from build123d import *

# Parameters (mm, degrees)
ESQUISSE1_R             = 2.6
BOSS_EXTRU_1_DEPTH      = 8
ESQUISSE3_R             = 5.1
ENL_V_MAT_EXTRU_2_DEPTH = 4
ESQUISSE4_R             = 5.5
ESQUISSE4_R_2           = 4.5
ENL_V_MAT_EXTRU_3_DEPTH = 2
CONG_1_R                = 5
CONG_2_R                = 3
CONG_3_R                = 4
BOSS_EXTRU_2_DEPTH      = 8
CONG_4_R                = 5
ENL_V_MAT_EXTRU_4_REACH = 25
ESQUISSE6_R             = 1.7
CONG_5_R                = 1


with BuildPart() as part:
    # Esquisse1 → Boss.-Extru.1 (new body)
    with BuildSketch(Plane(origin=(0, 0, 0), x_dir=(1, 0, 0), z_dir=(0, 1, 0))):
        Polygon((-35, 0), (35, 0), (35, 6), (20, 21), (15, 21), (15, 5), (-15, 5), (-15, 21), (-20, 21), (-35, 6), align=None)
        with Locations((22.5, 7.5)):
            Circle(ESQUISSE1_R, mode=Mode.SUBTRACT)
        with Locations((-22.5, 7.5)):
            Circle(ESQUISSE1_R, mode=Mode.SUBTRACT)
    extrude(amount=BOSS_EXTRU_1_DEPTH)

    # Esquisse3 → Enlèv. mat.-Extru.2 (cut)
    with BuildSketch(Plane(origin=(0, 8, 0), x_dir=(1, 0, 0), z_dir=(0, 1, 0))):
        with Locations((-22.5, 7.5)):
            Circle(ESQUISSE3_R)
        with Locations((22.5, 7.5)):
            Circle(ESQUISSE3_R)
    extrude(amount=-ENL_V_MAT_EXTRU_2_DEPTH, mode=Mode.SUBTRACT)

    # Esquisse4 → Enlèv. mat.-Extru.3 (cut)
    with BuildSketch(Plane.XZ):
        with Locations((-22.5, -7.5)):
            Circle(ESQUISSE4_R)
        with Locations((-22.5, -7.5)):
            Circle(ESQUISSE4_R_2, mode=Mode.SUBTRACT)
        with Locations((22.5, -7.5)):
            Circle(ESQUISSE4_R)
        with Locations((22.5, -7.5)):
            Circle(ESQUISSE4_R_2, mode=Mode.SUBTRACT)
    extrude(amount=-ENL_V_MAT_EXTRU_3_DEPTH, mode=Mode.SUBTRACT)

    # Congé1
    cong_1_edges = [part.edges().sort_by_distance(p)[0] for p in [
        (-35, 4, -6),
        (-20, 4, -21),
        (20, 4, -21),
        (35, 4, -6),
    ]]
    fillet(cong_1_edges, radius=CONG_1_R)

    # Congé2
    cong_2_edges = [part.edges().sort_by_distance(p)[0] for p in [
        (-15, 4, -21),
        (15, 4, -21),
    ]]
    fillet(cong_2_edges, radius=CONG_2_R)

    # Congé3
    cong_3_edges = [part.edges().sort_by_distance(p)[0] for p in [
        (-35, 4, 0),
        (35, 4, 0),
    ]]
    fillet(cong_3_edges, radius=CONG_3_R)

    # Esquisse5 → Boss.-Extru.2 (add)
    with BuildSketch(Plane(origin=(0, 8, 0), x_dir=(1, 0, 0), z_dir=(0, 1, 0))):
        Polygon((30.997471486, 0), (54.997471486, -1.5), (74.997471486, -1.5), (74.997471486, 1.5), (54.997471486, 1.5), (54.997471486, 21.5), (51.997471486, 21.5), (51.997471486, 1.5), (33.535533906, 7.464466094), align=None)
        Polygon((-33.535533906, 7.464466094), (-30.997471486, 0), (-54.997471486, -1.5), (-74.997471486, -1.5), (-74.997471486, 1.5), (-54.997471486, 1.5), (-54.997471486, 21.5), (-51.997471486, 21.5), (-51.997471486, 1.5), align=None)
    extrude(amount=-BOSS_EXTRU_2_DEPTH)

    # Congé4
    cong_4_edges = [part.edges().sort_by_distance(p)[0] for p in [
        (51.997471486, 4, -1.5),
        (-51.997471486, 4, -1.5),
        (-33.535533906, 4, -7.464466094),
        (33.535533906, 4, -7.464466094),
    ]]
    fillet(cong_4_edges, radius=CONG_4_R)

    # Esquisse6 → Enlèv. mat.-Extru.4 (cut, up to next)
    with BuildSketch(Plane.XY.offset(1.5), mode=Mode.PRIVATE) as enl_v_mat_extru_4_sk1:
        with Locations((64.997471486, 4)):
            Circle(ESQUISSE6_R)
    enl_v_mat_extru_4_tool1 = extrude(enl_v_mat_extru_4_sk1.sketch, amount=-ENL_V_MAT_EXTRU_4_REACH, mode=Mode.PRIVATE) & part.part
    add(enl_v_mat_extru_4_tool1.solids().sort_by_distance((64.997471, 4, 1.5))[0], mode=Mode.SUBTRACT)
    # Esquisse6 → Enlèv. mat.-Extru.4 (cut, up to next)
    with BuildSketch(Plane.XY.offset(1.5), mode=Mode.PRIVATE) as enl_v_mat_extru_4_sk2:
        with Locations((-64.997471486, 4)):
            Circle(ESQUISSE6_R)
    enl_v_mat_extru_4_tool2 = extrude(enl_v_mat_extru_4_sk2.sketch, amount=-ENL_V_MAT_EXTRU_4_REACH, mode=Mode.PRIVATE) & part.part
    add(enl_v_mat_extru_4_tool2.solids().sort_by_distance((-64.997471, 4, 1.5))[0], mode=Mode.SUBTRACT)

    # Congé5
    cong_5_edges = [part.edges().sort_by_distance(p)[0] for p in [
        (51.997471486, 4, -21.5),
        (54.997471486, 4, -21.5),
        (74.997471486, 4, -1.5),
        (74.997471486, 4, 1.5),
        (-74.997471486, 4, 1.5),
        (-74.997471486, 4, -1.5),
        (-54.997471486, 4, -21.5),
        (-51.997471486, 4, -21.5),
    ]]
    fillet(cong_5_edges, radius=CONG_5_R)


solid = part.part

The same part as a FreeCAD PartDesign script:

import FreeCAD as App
import Part
import Sketcher

V = App.Vector


def edges_at(feature, points):
    """Names of the edges that pass closest to the given points."""
    edges = feature.Shape.Edges
    near = lambda p: min(range(len(edges)), key=lambda i: edges[i].distToShape(Part.Vertex(*p))[0])
    return sorted({f"Edge{near(p) + 1}" for p in points})

doc = App.newDocument("Part")
body = doc.addObject("PartDesign::Body", "Body")

# Sketch on XZ plane
sketch1 = body.newObject("Sketcher::SketchObject", "Sketch")
sketch1.AttachmentSupport = (doc.getObject("XZ_Plane"), [""])
sketch1.MapMode = "FlatFace"
sketch1.addGeometry(Part.LineSegment(V(-35, 0, 0), V(35, 0, 0)), False)
sketch1.addGeometry(Part.LineSegment(V(35, 0, 0), V(35, -6, 0)), False)
sketch1.addGeometry(Part.LineSegment(V(35, -6, 0), V(20, -21, 0)), False)
sketch1.addGeometry(Part.LineSegment(V(20, -21, 0), V(15, -21, 0)), False)
sketch1.addGeometry(Part.LineSegment(V(15, -21, 0), V(15, -5, 0)), False)
sketch1.addGeometry(Part.LineSegment(V(15, -5, 0), V(-15, -5, 0)), False)
sketch1.addGeometry(Part.LineSegment(V(-15, -5, 0), V(-15, -21, 0)), False)
sketch1.addGeometry(Part.LineSegment(V(-15, -21, 0), V(-20, -21, 0)), False)
sketch1.addGeometry(Part.LineSegment(V(-20, -21, 0), V(-35, -6, 0)), False)
sketch1.addGeometry(Part.LineSegment(V(-35, -6, 0), V(-35, 0, 0)), False)
sketch1.addGeometry(Part.Circle(V(-22.5, -7.5, 0), V(0, 0, 1), 2.6), False)
sketch1.addGeometry(Part.Circle(V(22.5, -7.5, 0), V(0, 0, 1), 2.6), False)
sketch1.addConstraint(Sketcher.Constraint("Coincident", 0, 2, 1, 1))
sketch1.addConstraint(Sketcher.Constraint("Coincident", 1, 2, 2, 1))
sketch1.addConstraint(Sketcher.Constraint("Coincident", 2, 2, 3, 1))
sketch1.addConstraint(Sketcher.Constraint("Coincident", 3, 2, 4, 1))
sketch1.addConstraint(Sketcher.Constraint("Coincident", 4, 2, 5, 1))
sketch1.addConstraint(Sketcher.Constraint("Coincident", 5, 2, 6, 1))
sketch1.addConstraint(Sketcher.Constraint("Coincident", 6, 2, 7, 1))
sketch1.addConstraint(Sketcher.Constraint("Coincident", 7, 2, 8, 1))
sketch1.addConstraint(Sketcher.Constraint("Coincident", 8, 2, 9, 1))
sketch1.addConstraint(Sketcher.Constraint("Coincident", 9, 2, 0, 1))
sketch1.addConstraint(Sketcher.Constraint("Horizontal", 0))
sketch1.addConstraint(Sketcher.Constraint("Vertical", 1))
sketch1.addConstraint(Sketcher.Constraint("Horizontal", 3))
sketch1.addConstraint(Sketcher.Constraint("Vertical", 4))
sketch1.addConstraint(Sketcher.Constraint("Horizontal", 5))
sketch1.addConstraint(Sketcher.Constraint("Vertical", 6))
sketch1.addConstraint(Sketcher.Constraint("Horizontal", 7))
sketch1.addConstraint(Sketcher.Constraint("Vertical", 9))
sketch1.addConstraint(Sketcher.Constraint("Equal", 10, 11))
sketch1.addConstraint(Sketcher.Constraint("Symmetric", 0, 2, 9, 2, -1, 1))
sketch1.addConstraint(Sketcher.Constraint("Symmetric", 10, 3, 11, 3, -2))
sketch1.addConstraint(Sketcher.Constraint("Symmetric", 3, 2, 6, 2, -2))
sketch1.addConstraint(Sketcher.Constraint("Perpendicular", 2, 8))
sketch1.addConstraint(Sketcher.Constraint("Horizontal", 1, 2, 8, 2))
sketch1.addConstraint(Sketcher.Constraint("Equal", 3, 7))
sketch1.addConstraint(Sketcher.Constraint("Diameter", 10, 5.2))
sketch1.addConstraint(Sketcher.Constraint("DistanceX", 0, 1, 0, 2, 70.0))
sketch1.addConstraint(Sketcher.Constraint("DistanceX", 3, 2, 3, 1, 5.0))
sketch1.addConstraint(Sketcher.Constraint("DistanceX", 5, 2, 5, 1, 30.0))
sketch1.addConstraint(Sketcher.Constraint("DistanceY", 1, 2, 1, 1, 6.0))
sketch1.addConstraint(Sketcher.Constraint("DistanceY", 4, 1, 4, 2, 16.0))
sketch1.addConstraint(Sketcher.Constraint("DistanceX", 10, 3, 11, 3, 45.0))
sketch1.addConstraint(Sketcher.Constraint("DistanceY", 10, 3, -1, 1, 7.5))
pad1 = body.newObject("PartDesign::Pad", "Pad")
pad1.Profile = sketch1
pad1.Length = 8
pad1.Reversed = True

# Sketch on XZ plane
sketch2 = body.newObject("Sketcher::SketchObject", "Sketch001")
sketch2.AttachmentSupport = (doc.getObject("XZ_Plane"), [""])
sketch2.MapMode = "FlatFace"
sketch2.AttachmentOffset = App.Placement(V(0, 0, -8), App.Rotation())
sketch2.addGeometry(Part.Circle(V(-22.5, -7.5, 0), V(0, 0, 1), 5.1), False)
sketch2.addGeometry(Part.Circle(V(22.5, -7.5, 0), V(0, 0, 1), 5.1), False)
sketch2.addConstraint(Sketcher.Constraint("Equal", 0, 1))
sketch2.addConstraint(Sketcher.Constraint("Symmetric", 0, 3, 1, 3, -2))
sketch2.addConstraint(Sketcher.Constraint("Diameter", 0, 10.2))
sketch2.addConstraint(Sketcher.Constraint("DistanceX", 0, 3, 1, 3, 45.0))
sketch2.addConstraint(Sketcher.Constraint("DistanceY", 0, 3, -1, 1, 7.5))
pocket1 = body.newObject("PartDesign::Pocket", "Pocket")
pocket1.Profile = sketch2
pocket1.Length = 4
pocket1.Reversed = True

# Sketch on XZ plane
sketch3 = body.newObject("Sketcher::SketchObject", "Sketch002")
sketch3.AttachmentSupport = (doc.getObject("XZ_Plane"), [""])
sketch3.MapMode = "FlatFace"
sketch3.addGeometry(Part.Circle(V(-22.5, -7.5, 0), V(0, 0, 1), 5.5), False)
sketch3.addGeometry(Part.Circle(V(-22.5, -7.5, 0), V(0, 0, 1), 4.5), False)
sketch3.addGeometry(Part.Circle(V(22.5, -7.5, 0), V(0, 0, 1), 5.5), False)
sketch3.addGeometry(Part.Circle(V(22.5, -7.5, 0), V(0, 0, 1), 4.5), False)
sketch3.addConstraint(Sketcher.Constraint("Coincident", 1, 3, 0, 3))
sketch3.addConstraint(Sketcher.Constraint("Coincident", 3, 3, 2, 3))
sketch3.addConstraint(Sketcher.Constraint("Equal", 0, 2))
sketch3.addConstraint(Sketcher.Constraint("Equal", 1, 3))
sketch3.addConstraint(Sketcher.Constraint("Symmetric", 0, 3, 2, 3, -2))
sketch3.addConstraint(Sketcher.Constraint("Diameter", 0, 11.0))
sketch3.addConstraint(Sketcher.Constraint("Diameter", 1, 9.0))
sketch3.addConstraint(Sketcher.Constraint("DistanceX", 0, 3, 2, 3, 45.0))
sketch3.addConstraint(Sketcher.Constraint("DistanceY", 0, 3, -1, 1, 7.5))
pocket2 = body.newObject("PartDesign::Pocket", "Pocket001")
pocket2.Profile = sketch3
pocket2.Length = 2
doc.recompute()

fillet = body.newObject("PartDesign::Fillet", "Fillet")
fillet.Base = (pocket2, edges_at(pocket2, [
    (-35, 4, -6),
    (-20, 4, -21),
    (20, 4, -21),
    (35, 4, -6),
]))
fillet.Radius = 5
doc.recompute()

fillet2 = body.newObject("PartDesign::Fillet", "Fillet001")
fillet2.Base = (fillet, edges_at(fillet, [(-15, 4, -21), (15, 4, -21)]))
fillet2.Radius = 3
doc.recompute()

fillet3 = body.newObject("PartDesign::Fillet", "Fillet002")
fillet3.Base = (fillet2, edges_at(fillet2, [(-35, 4, 0), (35, 4, 0)]))
fillet3.Radius = 4

# Sketch on XZ plane
sketch4 = body.newObject("Sketcher::SketchObject", "Sketch003")
sketch4.AttachmentSupport = (doc.getObject("XZ_Plane"), [""])
sketch4.MapMode = "FlatFace"
sketch4.AttachmentOffset = App.Placement(V(0, 0, -8), App.Rotation())
sketch4.addGeometry(Part.LineSegment(V(30.997471, 0, 0), V(54.997471, 1.5, 0)), False)
sketch4.addGeometry(Part.LineSegment(V(54.997471, 1.5, 0), V(74.997471, 1.5, 0)), False)
sketch4.addGeometry(Part.LineSegment(V(74.997471, 1.5, 0), V(74.997471, -1.5, 0)), False)
sketch4.addGeometry(Part.LineSegment(V(74.997471, -1.5, 0), V(54.997471, -1.5, 0)), False)
sketch4.addGeometry(Part.LineSegment(V(54.997471, -1.5, 0), V(54.997471, -21.5, 0)), False)
sketch4.addGeometry(Part.LineSegment(V(54.997471, -21.5, 0), V(51.997471, -21.5, 0)), False)
sketch4.addGeometry(Part.LineSegment(V(51.997471, -21.5, 0), V(51.997471, -1.5, 0)), False)
sketch4.addGeometry(Part.LineSegment(V(51.997471, -1.5, 0), V(33.535534, -7.464466, 0)), False)
sketch4.addGeometry(Part.LineSegment(V(33.535534, -7.464466, 0), V(30.997471, 0, 0)), False)
sketch4.addGeometry(Part.LineSegment(V(-30.997471, 0, 0), V(-33.535534, -7.464466, 0)), False)
sketch4.addGeometry(Part.LineSegment(V(-33.535534, -7.464466, 0), V(-51.997471, -1.5, 0)), False)
sketch4.addGeometry(Part.LineSegment(V(-51.997471, -1.5, 0), V(-51.997471, -21.5, 0)), False)
sketch4.addGeometry(Part.LineSegment(V(-51.997471, -21.5, 0), V(-54.997471, -21.5, 0)), False)
sketch4.addGeometry(Part.LineSegment(V(-54.997471, -21.5, 0), V(-54.997471, -1.5, 0)), False)
sketch4.addGeometry(Part.LineSegment(V(-54.997471, -1.5, 0), V(-74.997471, -1.5, 0)), False)
sketch4.addGeometry(Part.LineSegment(V(-74.997471, -1.5, 0), V(-74.997471, 1.5, 0)), False)
sketch4.addGeometry(Part.LineSegment(V(-74.997471, 1.5, 0), V(-54.997471, 1.5, 0)), False)
sketch4.addGeometry(Part.LineSegment(V(-54.997471, 1.5, 0), V(-30.997471, 0, 0)), False)
sketch4.addConstraint(Sketcher.Constraint("Coincident", 0, 2, 1, 1))
sketch4.addConstraint(Sketcher.Constraint("Coincident", 1, 2, 2, 1))
sketch4.addConstraint(Sketcher.Constraint("Coincident", 2, 2, 3, 1))
sketch4.addConstraint(Sketcher.Constraint("Coincident", 3, 2, 4, 1))
sketch4.addConstraint(Sketcher.Constraint("Coincident", 4, 2, 5, 1))
sketch4.addConstraint(Sketcher.Constraint("Coincident", 5, 2, 6, 1))
sketch4.addConstraint(Sketcher.Constraint("Coincident", 6, 2, 7, 1))
sketch4.addConstraint(Sketcher.Constraint("Coincident", 7, 2, 8, 1))
sketch4.addConstraint(Sketcher.Constraint("Coincident", 8, 2, 0, 1))
sketch4.addConstraint(Sketcher.Constraint("Coincident", 9, 2, 10, 1))
sketch4.addConstraint(Sketcher.Constraint("Coincident", 10, 2, 11, 1))
sketch4.addConstraint(Sketcher.Constraint("Coincident", 11, 2, 12, 1))
sketch4.addConstraint(Sketcher.Constraint("Coincident", 12, 2, 13, 1))
sketch4.addConstraint(Sketcher.Constraint("Coincident", 13, 2, 14, 1))
sketch4.addConstraint(Sketcher.Constraint("Coincident", 14, 2, 15, 1))
sketch4.addConstraint(Sketcher.Constraint("Coincident", 15, 2, 16, 1))
sketch4.addConstraint(Sketcher.Constraint("Coincident", 16, 2, 17, 1))
sketch4.addConstraint(Sketcher.Constraint("Coincident", 17, 2, 9, 1))
sketch4.addConstraint(Sketcher.Constraint("Horizontal", 1))
sketch4.addConstraint(Sketcher.Constraint("Vertical", 2))
sketch4.addConstraint(Sketcher.Constraint("Horizontal", 3))
sketch4.addConstraint(Sketcher.Constraint("Vertical", 4))
sketch4.addConstraint(Sketcher.Constraint("Horizontal", 5))
sketch4.addConstraint(Sketcher.Constraint("Vertical", 6))
sketch4.addConstraint(Sketcher.Constraint("Vertical", 11))
sketch4.addConstraint(Sketcher.Constraint("Horizontal", 12))
sketch4.addConstraint(Sketcher.Constraint("Vertical", 13))
sketch4.addConstraint(Sketcher.Constraint("Horizontal", 14))
sketch4.addConstraint(Sketcher.Constraint("Vertical", 15))
sketch4.addConstraint(Sketcher.Constraint("Horizontal", 16))
sketch4.addConstraint(Sketcher.Constraint("Symmetric", 0, 2, 13, 2, -1, 1))
sketch4.addConstraint(Sketcher.Constraint("Symmetric", 2, 2, 15, 2, -1, 1))
sketch4.addConstraint(Sketcher.Constraint("Symmetric", 8, 2, 17, 2, -1, 1))
sketch4.addConstraint(Sketcher.Constraint("Symmetric", 7, 2, 9, 2, -2))
sketch4.addConstraint(Sketcher.Constraint("Symmetric", 6, 2, 10, 2, -2))
sketch4.addConstraint(Sketcher.Constraint("Symmetric", 4, 2, 12, 2, -2))
sketch4.addConstraint(Sketcher.Constraint("Symmetric", 0, 2, 16, 2, -2))
sketch4.addConstraint(Sketcher.Constraint("PointOnObject", 8, 2, -1))
sketch4.addConstraint(Sketcher.Constraint("Horizontal", 3, 2, 6, 2))
sketch4.addConstraint(Sketcher.Constraint("Equal", 12, 2))
sketch4.addConstraint(Sketcher.Constraint("Equal", 16, 4))
sketch4.addConstraint(Sketcher.Constraint("DistanceX", 1, 1, 1, 2, 20.0))
sketch4.addConstraint(Sketcher.Constraint("DistanceX", 5, 2, 5, 1, 3.0))
sketch4.addConstraint(Sketcher.Constraint("DistanceX", 8, 2, 6, 2, 21.0))
sketch4.addConstraint(Sketcher.Constraint("DistanceX", -1, 1, 0, 2, 54.997471))
sketch4.addConstraint(Sketcher.Constraint("Distance", 7, 19.401495))
sketch4.addConstraint(Sketcher.Constraint("Distance", 8, 7.884162))
pad2 = body.newObject("PartDesign::Pad", "Pad001")
pad2.Profile = sketch4
pad2.Length = 8
doc.recompute()

fillet4 = body.newObject("PartDesign::Fillet", "Fillet003")
fillet4.Base = (pad2, edges_at(pad2, [
    (51.997, 4, -1.5),
    (-51.997, 4, -1.5),
    (-33.536, 4, -7.464),
    (33.536, 4, -7.464),
]))
fillet4.Radius = 5

# Sketch on XY plane
sketch5 = body.newObject("Sketcher::SketchObject", "Sketch004")
sketch5.AttachmentSupport = (doc.getObject("XY_Plane"), [""])
sketch5.MapMode = "FlatFace"
sketch5.AttachmentOffset = App.Placement(V(0, 0, 1.5), App.Rotation())
sketch5.addGeometry(Part.Circle(V(64.997471, 4, 0), V(0, 0, 1), 1.7), False)
sketch5.addConstraint(Sketcher.Constraint("Diameter", 0, 3.4))
sketch5.addConstraint(Sketcher.Constraint("DistanceY", -1, 1, 0, 3, 4.0))
sketch5.addConstraint(Sketcher.Constraint("DistanceX", -1, 1, 0, 3, 64.997471))
pocket3 = body.newObject("PartDesign::Pocket", "Pocket002")
pocket3.Profile = sketch5
pocket3.Type = "UpToFirst"

# Sketch on XY plane
sketch6 = body.newObject("Sketcher::SketchObject", "Sketch005")
sketch6.AttachmentSupport = (doc.getObject("XY_Plane"), [""])
sketch6.MapMode = "FlatFace"
sketch6.AttachmentOffset = App.Placement(V(0, 0, 1.5), App.Rotation())
sketch6.addGeometry(Part.Circle(V(-64.997471, 4, 0), V(0, 0, 1), 1.7), False)
sketch6.addConstraint(Sketcher.Constraint("Diameter", 0, 3.4))
sketch6.addConstraint(Sketcher.Constraint("DistanceY", -1, 1, 0, 3, 4.0))
sketch6.addConstraint(Sketcher.Constraint("DistanceX", 0, 3, -1, 1, 64.997471))
pocket4 = body.newObject("PartDesign::Pocket", "Pocket003")
pocket4.Profile = sketch6
pocket4.Type = "UpToFirst"
doc.recompute()

fillet5 = body.newObject("PartDesign::Fillet", "Fillet004")
fillet5.Base = (pocket4, edges_at(pocket4, [
    (51.997, 4, -21.5),
    (54.997, 4, -21.5),
    (74.997, 4, -1.5),
    (74.997, 4, 1.5),
    (-74.997, 4, 1.5),
    (-74.997, 4, -1.5),
    (-54.997, 4, -21.5),
    (-51.997, 4, -21.5),
]))
fillet5.Radius = 1

doc.recompute()
